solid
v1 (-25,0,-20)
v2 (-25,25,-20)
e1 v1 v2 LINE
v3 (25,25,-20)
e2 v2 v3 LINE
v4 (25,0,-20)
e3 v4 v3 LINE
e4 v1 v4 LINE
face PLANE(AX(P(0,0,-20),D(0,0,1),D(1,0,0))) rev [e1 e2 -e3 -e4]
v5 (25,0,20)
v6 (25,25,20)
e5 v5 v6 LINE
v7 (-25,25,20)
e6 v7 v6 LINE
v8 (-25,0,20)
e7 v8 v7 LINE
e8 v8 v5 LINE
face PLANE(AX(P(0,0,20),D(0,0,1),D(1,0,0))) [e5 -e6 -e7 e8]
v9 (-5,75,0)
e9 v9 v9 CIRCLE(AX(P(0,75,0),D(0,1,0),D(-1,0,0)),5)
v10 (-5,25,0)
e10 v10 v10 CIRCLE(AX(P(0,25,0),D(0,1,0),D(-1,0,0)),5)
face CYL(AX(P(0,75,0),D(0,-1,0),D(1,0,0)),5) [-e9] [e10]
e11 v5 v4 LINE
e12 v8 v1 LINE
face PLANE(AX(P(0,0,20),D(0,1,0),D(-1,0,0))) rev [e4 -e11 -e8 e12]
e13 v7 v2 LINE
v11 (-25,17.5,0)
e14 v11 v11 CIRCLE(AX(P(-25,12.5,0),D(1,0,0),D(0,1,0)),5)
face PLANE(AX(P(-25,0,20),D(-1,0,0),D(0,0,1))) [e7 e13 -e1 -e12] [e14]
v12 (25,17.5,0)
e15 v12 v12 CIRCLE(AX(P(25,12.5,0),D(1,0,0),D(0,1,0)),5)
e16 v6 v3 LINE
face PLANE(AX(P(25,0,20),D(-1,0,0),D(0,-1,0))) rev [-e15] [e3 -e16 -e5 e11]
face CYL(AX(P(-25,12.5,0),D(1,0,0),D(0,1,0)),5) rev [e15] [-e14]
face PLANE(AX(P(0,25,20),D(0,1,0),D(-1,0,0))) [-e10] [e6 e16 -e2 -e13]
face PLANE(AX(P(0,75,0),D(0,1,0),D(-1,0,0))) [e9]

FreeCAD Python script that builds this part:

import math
import FreeCAD as App
import Part
import Sketcher
from FreeCAD import Vector


def add_polygon(sketch, points):
    """Adds a closed chain of lines whose ends are joined by coincident constraints."""
    first, n = sketch.GeometryCount, len(points)
    for a, b in zip(points, points[1:] + points[:1]):
        sketch.addGeometry(Part.LineSegment(App.Vector(*a, 0), App.Vector(*b, 0)), False)
    for i in range(n):
        sketch.addConstraint(Sketcher.Constraint("Coincident", first + i, 2, first + (i + 1) % n, 1))

doc = App.newDocument("Part")
body = doc.addObject("PartDesign::Body", "Body")

sketch1 = body.newObject("Sketcher::SketchObject", "Sketch")
sketch1.AttachmentSupport = (doc.getObject("XY_Plane"), [""])
sketch1.MapMode = "FlatFace"
add_polygon(sketch1, [(-25, 25), (-25, 0), (25, 0), (25, 25)])
sketch1.addConstraint([
    Sketcher.Constraint("Vertical", 0),
    Sketcher.Constraint("Horizontal", 1),
    Sketcher.Constraint("Vertical", 2),
    Sketcher.Constraint("Horizontal", 3),
    Sketcher.Constraint("Symmetric", 0, 2, 1, 2, -1, 1),
    Sketcher.Constraint("DistanceX", 1, 1, 1, 2, 50.0),
    Sketcher.Constraint("DistanceY", 0, 2, 0, 1, 25.0),
])
pad1 = body.newObject("PartDesign::Pad", "Pad")
pad1.Profile = sketch1
pad1.Length = 40
pad1.Midplane = True

sketch2 = body.newObject("Sketcher::SketchObject", "Sketch001")
sketch2.AttachmentSupport = (doc.getObject("XZ_Plane"), [""])
sketch2.MapMode = "FlatFace"
sketch2.AttachmentOffset = App.Placement(Vector(0, 0, -25), App.Rotation())
sketch2.addGeometry(Part.Circle(Vector(0, 0, 0), Vector(0, 0, 1), 5), False)
sketch2.addConstraint([
    Sketcher.Constraint("Coincident", 0, 3, -1, 1),
    Sketcher.Constraint("Diameter", 0, 10.0),
])
pad2 = body.newObject("PartDesign::Pad", "Pad001")
pad2.Profile = sketch2
pad2.Length = 50
pad2.Reversed = True

sketch3 = body.newObject("Sketcher::SketchObject", "Sketch002")
sketch3.AttachmentSupport = (doc.getObject("YZ_Plane"), [""])
sketch3.MapMode = "FlatFace"
sketch3.AttachmentOffset = App.Placement(Vector(0, 0, 25), App.Rotation())
sketch3.addGeometry([
    Part.ArcOfCircle(Part.Circle(Vector(12, 0, 0), Vector(0, 0, 1), 5), math.radians(-90), math.radians(0)),
    Part.ArcOfCircle(Part.Circle(Vector(12, 0, 0), Vector(0, 0, 1), 5), math.radians(0), math.radians(180)),
    Part.ArcOfCircle(Part.Circle(Vector(12, 0, 0), Vector(0, 0, 1), 5), math.radians(180), math.radians(270)),
], False)
sketch3.addConstraint([
    Sketcher.Constraint("Tangent", 0, 2, 1, 1),
    Sketcher.Constraint("Tangent", 1, 2, 2, 1),
    Sketcher.Constraint("Tangent", 2, 2, 0, 1),
    Sketcher.Constraint("PointOnObject", 0, 3, -1),
    Sketcher.Constraint("PointOnObject", 0, 2, -1),
    Sketcher.Constraint("PointOnObject", 1, 2, -1),
    Sketcher.Constraint("Vertical", 1, 3, 2, 2),
    Sketcher.Constraint("Radius", 0, 5.0),
    Sketcher.Constraint("DistanceX", -1, 1, 0, 3, 12.5),
])
pocket1 = body.newObject("PartDesign::Pocket", "Pocket")
pocket1.Profile = sketch3
pocket1.Length = 50

doc.recompute()
